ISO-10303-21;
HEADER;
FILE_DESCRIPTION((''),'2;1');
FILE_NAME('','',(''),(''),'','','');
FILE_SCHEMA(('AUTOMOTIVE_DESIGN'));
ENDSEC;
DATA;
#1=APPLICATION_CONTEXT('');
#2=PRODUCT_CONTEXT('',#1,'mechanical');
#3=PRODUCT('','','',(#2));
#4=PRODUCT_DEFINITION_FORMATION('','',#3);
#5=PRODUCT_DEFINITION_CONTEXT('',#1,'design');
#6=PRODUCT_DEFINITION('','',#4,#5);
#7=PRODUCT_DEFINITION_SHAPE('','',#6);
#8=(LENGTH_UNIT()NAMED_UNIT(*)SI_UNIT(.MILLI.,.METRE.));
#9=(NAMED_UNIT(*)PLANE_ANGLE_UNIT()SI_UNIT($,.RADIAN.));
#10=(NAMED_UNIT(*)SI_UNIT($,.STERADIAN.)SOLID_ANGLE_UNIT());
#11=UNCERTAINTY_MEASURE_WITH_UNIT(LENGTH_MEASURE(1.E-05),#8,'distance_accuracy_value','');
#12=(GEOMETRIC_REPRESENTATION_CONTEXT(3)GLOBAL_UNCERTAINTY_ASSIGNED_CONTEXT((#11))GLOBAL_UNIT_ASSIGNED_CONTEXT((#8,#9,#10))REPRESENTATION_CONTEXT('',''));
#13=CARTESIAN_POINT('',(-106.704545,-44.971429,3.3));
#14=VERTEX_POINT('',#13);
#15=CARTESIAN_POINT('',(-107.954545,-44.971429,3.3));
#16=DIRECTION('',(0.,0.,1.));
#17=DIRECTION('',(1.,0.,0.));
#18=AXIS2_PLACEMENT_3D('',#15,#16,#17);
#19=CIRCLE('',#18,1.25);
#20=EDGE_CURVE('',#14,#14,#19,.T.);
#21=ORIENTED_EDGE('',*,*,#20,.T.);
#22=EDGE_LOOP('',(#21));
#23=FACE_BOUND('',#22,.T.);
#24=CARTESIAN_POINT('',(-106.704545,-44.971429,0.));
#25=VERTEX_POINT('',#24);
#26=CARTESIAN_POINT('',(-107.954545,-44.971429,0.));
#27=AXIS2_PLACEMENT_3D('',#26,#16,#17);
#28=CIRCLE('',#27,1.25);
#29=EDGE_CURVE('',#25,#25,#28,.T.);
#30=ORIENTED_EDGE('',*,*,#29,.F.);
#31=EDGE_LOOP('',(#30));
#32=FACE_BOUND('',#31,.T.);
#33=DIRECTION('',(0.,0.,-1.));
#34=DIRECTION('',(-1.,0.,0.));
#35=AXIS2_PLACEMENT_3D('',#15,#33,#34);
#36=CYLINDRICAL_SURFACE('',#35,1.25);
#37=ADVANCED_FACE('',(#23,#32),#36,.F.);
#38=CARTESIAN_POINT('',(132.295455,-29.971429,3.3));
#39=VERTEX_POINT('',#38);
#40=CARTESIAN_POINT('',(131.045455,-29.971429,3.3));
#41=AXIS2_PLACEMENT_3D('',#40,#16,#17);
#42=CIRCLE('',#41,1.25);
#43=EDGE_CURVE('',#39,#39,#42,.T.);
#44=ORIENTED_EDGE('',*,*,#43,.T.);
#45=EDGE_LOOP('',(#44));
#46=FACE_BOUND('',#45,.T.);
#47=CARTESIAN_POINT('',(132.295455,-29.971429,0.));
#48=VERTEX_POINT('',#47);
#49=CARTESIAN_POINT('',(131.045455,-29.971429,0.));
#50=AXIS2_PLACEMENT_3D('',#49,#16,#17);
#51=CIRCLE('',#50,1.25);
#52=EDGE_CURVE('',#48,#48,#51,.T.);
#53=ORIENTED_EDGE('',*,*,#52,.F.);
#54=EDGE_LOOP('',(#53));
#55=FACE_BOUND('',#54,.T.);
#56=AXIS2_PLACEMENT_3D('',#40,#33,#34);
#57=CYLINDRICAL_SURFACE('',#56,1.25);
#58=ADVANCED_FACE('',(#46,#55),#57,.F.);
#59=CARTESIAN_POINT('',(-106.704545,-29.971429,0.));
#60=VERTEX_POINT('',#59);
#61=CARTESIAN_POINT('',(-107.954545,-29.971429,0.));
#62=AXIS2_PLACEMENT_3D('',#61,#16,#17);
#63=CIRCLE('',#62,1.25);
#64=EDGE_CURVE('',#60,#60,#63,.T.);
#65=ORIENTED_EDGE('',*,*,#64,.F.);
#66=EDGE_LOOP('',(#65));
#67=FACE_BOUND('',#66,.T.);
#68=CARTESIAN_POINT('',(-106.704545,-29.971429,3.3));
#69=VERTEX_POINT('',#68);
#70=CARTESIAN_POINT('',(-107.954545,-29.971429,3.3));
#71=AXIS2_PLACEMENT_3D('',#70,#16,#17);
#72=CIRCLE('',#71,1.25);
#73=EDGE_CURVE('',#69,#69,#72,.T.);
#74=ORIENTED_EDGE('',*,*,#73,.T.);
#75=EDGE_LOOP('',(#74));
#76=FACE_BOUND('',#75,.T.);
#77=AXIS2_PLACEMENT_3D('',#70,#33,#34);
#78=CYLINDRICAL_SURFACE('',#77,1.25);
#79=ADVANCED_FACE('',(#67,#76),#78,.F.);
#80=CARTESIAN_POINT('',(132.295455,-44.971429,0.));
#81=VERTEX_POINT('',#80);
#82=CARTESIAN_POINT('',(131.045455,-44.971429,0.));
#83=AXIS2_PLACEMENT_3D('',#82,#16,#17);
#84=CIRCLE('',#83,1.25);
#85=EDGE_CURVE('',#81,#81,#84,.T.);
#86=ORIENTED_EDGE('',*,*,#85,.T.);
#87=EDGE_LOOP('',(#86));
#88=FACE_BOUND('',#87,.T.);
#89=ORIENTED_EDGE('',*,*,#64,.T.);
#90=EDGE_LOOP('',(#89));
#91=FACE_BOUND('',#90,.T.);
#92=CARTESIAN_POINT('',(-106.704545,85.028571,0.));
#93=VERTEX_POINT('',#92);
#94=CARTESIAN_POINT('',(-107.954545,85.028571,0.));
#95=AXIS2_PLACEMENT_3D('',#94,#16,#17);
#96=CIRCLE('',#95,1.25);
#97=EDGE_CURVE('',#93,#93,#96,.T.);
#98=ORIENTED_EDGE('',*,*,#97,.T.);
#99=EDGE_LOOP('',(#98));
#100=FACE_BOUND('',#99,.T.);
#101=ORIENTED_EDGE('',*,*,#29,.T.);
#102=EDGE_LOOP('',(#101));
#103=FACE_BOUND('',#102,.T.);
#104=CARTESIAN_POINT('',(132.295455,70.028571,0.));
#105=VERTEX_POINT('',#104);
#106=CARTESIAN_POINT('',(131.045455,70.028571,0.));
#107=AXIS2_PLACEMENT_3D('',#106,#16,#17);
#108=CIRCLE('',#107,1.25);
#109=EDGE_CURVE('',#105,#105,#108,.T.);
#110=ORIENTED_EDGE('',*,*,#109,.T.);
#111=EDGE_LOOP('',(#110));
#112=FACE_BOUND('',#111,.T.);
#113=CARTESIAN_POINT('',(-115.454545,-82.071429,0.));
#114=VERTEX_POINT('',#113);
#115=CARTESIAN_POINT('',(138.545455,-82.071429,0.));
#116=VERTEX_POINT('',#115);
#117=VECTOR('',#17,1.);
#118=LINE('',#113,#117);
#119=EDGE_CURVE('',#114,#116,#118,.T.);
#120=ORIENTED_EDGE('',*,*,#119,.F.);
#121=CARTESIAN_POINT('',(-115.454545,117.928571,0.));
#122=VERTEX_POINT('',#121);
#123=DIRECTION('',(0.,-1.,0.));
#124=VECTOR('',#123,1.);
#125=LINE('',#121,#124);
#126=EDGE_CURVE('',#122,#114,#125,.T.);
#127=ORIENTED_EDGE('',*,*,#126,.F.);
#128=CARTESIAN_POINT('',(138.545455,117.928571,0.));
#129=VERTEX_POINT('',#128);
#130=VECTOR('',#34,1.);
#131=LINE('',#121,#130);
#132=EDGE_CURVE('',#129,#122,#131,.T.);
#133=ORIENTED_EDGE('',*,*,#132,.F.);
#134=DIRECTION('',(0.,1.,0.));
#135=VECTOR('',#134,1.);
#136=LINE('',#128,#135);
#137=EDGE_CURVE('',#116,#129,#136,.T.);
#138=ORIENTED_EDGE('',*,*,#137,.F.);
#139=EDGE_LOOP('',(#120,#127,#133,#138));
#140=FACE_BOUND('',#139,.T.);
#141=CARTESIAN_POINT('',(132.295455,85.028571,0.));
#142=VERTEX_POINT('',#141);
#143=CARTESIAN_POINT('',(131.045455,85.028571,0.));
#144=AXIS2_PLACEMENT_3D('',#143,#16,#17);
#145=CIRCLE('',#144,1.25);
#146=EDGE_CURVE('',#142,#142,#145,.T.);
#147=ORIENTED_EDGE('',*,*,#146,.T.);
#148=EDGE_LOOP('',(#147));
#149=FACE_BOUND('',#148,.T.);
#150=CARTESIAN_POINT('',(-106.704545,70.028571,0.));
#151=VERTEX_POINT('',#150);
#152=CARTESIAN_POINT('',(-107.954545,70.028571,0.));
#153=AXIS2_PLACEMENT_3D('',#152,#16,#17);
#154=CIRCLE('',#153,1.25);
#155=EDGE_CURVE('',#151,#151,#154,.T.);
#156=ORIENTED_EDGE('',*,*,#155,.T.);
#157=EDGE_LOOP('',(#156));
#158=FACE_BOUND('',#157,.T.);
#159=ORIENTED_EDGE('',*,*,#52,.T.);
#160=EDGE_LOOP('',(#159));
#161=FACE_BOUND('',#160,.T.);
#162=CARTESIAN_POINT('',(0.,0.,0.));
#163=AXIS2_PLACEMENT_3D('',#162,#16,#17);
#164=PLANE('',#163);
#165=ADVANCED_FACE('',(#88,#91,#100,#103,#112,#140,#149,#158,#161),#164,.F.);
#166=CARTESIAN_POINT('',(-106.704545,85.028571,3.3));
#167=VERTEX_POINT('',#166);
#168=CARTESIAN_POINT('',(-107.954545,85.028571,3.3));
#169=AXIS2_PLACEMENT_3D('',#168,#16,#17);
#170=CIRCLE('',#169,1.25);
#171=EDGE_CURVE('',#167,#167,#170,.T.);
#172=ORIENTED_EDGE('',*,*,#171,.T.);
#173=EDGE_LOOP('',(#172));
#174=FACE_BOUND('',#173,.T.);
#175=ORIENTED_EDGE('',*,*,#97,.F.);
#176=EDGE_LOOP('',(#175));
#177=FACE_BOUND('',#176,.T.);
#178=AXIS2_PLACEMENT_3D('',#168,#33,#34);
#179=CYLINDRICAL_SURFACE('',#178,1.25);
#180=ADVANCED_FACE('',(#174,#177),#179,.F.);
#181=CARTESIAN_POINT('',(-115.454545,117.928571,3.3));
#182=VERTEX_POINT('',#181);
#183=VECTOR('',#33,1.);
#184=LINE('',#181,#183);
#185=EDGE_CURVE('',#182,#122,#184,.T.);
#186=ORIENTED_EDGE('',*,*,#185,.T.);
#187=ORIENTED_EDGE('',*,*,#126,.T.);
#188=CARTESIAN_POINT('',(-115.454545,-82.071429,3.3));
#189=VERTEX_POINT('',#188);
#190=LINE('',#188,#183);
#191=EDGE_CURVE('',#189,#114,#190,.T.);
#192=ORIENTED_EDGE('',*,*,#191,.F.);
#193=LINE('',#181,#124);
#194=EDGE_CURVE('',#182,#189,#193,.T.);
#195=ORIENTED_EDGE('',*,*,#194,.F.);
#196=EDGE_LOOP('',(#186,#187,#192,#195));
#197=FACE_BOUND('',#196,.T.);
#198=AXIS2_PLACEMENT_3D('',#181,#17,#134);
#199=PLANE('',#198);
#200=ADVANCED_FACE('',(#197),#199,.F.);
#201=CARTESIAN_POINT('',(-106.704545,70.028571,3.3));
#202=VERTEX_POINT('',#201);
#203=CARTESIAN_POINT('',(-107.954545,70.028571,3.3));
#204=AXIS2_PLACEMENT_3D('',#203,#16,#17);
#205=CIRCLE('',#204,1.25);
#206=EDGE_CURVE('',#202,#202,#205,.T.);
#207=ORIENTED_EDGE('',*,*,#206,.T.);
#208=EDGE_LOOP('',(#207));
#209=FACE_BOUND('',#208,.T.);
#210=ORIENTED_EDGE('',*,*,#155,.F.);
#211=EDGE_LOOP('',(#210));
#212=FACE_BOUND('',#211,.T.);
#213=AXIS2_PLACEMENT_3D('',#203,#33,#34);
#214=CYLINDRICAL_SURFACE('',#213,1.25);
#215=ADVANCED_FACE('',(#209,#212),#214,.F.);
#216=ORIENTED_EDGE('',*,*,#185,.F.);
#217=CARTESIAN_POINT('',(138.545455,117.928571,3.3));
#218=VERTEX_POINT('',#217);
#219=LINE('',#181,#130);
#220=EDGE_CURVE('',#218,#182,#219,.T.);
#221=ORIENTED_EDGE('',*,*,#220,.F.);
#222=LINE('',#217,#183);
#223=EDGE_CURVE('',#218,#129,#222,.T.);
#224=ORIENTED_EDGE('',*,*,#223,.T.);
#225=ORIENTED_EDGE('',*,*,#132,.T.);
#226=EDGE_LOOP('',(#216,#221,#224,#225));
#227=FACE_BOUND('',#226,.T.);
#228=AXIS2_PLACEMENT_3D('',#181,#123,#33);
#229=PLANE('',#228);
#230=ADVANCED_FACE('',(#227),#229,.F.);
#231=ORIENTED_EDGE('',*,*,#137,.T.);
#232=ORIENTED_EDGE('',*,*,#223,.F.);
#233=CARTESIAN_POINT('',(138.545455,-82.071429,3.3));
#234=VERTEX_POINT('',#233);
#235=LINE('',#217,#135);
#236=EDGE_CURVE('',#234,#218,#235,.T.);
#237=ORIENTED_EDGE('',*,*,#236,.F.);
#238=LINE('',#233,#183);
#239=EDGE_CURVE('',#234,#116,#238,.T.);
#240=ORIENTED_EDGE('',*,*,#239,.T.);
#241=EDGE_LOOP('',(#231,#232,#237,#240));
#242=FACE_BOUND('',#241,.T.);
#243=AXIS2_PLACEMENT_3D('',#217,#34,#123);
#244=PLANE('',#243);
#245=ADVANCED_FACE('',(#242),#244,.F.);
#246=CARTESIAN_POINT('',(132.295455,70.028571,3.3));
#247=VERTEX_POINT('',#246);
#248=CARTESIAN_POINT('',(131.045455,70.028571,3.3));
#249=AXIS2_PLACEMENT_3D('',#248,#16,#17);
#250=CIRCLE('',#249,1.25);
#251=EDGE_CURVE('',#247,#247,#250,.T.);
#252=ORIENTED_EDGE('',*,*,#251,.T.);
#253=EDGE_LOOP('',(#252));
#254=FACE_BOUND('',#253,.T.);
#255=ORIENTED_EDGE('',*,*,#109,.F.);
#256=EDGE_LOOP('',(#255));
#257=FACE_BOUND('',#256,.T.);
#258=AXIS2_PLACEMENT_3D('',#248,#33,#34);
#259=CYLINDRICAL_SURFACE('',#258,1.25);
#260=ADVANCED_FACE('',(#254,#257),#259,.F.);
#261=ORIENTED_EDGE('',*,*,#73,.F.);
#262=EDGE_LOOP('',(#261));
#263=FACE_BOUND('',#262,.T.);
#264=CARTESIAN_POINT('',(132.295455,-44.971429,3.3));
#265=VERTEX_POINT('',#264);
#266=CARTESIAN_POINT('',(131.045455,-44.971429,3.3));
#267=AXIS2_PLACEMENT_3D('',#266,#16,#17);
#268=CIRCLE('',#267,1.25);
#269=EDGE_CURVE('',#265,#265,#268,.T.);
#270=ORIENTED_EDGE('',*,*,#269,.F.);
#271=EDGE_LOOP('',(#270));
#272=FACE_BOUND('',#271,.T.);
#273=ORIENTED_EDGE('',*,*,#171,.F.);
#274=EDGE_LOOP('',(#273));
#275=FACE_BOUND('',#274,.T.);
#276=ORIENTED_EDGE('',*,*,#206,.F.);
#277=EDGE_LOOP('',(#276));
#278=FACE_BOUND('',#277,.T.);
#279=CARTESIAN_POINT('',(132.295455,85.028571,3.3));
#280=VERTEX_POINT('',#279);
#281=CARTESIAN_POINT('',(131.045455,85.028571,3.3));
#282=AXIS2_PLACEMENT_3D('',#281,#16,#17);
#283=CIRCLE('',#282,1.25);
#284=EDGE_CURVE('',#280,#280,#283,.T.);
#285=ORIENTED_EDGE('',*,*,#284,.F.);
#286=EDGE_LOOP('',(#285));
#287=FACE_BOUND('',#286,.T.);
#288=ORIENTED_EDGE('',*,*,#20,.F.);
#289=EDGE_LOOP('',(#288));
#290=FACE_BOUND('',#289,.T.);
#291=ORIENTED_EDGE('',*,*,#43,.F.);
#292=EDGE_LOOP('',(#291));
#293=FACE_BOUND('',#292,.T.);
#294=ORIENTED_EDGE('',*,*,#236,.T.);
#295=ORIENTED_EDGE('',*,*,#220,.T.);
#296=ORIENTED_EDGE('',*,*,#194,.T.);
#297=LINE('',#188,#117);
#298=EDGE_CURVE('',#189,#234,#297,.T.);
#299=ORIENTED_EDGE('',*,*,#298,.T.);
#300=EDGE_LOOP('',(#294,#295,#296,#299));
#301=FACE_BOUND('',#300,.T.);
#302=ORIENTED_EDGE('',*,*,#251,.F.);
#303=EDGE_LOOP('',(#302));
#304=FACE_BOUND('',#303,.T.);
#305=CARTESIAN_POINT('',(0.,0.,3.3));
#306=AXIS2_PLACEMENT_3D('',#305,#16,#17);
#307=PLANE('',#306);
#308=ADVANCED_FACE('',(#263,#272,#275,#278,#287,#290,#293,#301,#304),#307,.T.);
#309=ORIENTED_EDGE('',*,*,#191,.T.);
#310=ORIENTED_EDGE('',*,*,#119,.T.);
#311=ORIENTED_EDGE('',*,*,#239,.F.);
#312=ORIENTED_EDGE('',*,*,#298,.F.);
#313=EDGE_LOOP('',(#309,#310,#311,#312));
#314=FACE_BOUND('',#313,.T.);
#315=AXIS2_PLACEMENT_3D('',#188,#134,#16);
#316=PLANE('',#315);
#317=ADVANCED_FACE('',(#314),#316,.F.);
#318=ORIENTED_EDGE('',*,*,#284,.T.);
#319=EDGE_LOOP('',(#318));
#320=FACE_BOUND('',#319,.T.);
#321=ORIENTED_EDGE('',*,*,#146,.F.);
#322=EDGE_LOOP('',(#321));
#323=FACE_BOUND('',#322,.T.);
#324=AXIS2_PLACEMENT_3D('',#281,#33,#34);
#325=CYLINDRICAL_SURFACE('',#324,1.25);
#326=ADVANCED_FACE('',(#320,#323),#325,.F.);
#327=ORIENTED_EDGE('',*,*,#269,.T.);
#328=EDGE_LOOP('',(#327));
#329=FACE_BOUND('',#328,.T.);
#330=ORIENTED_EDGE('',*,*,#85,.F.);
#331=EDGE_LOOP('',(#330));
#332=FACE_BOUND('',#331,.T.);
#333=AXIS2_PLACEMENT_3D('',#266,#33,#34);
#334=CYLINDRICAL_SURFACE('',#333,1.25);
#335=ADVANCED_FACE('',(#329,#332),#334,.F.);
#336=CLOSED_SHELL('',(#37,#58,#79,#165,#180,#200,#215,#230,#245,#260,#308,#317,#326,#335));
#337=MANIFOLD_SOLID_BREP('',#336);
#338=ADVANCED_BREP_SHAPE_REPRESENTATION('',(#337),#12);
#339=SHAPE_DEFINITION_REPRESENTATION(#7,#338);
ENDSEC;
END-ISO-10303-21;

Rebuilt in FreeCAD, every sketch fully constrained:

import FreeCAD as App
import Part
import Sketcher

V = App.Vector
Q = App.Units.Quantity

doc = App.newDocument("Part")
params = doc.addObject("Spreadsheet::Sheet", "Params")
for row, (alias, value) in enumerate([
    ("sketch1_diameter", "2.5 mm"),
    ("sketch1_width", "254 mm"),
    ("sketch1_height", "200 mm"),
    ("pad1_length", "3.3 mm"),
], start=1):
    params.set(f"A{row}", alias)
    params.set(f"B{row}", "=" + value)
    params.setAlias(f"B{row}", alias)

body = doc.addObject("PartDesign::Body", "Body")

# Sketch on XY plane
sketch1 = body.newObject("Sketcher::SketchObject", "Sketch")
sketch1.AttachmentSupport = (doc.getObject("XY_Plane"), [""])
sketch1.MapMode = "FlatFace"
sketch1.addGeometry(Part.LineSegment(V(-115.454545, 117.928571, 0), V(-115.454545, -82.071429, 0)), False)
sketch1.addGeometry(Part.LineSegment(V(-115.454545, -82.071429, 0), V(138.545455, -82.071429, 0)), False)
sketch1.addGeometry(Part.LineSegment(V(138.545455, -82.071429, 0), V(138.545455, 117.928571, 0)), False)
sketch1.addGeometry(Part.LineSegment(V(138.545455, 117.928571, 0), V(-115.454545, 117.928571, 0)), False)
sketch1.addGeometry(Part.Circle(V(-107.954545, -44.971429, 0), V(0, 0, 1), 1.25), False)
sketch1.addGeometry(Part.Circle(V(-107.954545, -29.971429, 0), V(0, 0, 1), 1.25), False)
sketch1.addGeometry(Part.Circle(V(131.045455, -44.971429, 0), V(0, 0, 1), 1.25), False)
sketch1.addGeometry(Part.Circle(V(131.045455, -29.971429, 0), V(0, 0, 1), 1.25), False)
sketch1.addGeometry(Part.Circle(V(-107.954545, 70.028571, 0), V(0, 0, 1), 1.25), False)
sketch1.addGeometry(Part.Circle(V(-107.954545, 85.028571, 0), V(0, 0, 1), 1.25), False)
sketch1.addGeometry(Part.Circle(V(131.045455, 70.028571, 0), V(0, 0, 1), 1.25), False)
sketch1.addGeometry(Part.Circle(V(131.045455, 85.028571, 0), V(0, 0, 1), 1.25), False)
sketch1.addConstraint(Sketcher.Constraint("Coincident", 0, 2, 1, 1))
sketch1.addConstraint(Sketcher.Constraint("Coincident", 1, 2, 2, 1))
sketch1.addConstraint(Sketcher.Constraint("Coincident", 2, 2, 3, 1))
sketch1.addConstraint(Sketcher.Constraint("Coincident", 3, 2, 0, 1))
sketch1.addConstraint(Sketcher.Constraint("Vertical", 0))
sketch1.addConstraint(Sketcher.Constraint("Horizontal", 1))
sketch1.addConstraint(Sketcher.Constraint("Vertical", 2))
sketch1.addConstraint(Sketcher.Constraint("Horizontal", 3))
sketch1.addConstraint(Sketcher.Constraint("Equal", 4, 5))
sketch1.addConstraint(Sketcher.Constraint("Equal", 5, 6))
sketch1.addConstraint(Sketcher.Constraint("Equal", 6, 7))
sketch1.addConstraint(Sketcher.Constraint("Equal", 7, 8))
sketch1.addConstraint(Sketcher.Constraint("Equal", 8, 9))
sketch1.addConstraint(Sketcher.Constraint("Equal", 9, 10))
sketch1.addConstraint(Sketcher.Constraint("Equal", 10, 11))
sketch1.addConstraint(Sketcher.Constraint("Horizontal", 4, 3, 6, 3))
sketch1.addConstraint(Sketcher.Constraint("Horizontal", 5, 3, 7, 3))
sketch1.addConstraint(Sketcher.Constraint("Horizontal", 8, 3, 10, 3))
sketch1.addConstraint(Sketcher.Constraint("Horizontal", 9, 3, 11, 3))
sketch1.addConstraint(Sketcher.Constraint("Vertical", 4, 3, 5, 3))
sketch1.addConstraint(Sketcher.Constraint("Vertical", 6, 3, 7, 3))
sketch1.addConstraint(Sketcher.Constraint("Vertical", 5, 3, 8, 3))
sketch1.addConstraint(Sketcher.Constraint("Vertical", 8, 3, 9, 3))
sketch1.addConstraint(Sketcher.Constraint("Vertical", 7, 3, 10, 3))
sketch1.addConstraint(Sketcher.Constraint("Vertical", 10, 3, 11, 3))
sketch1.addConstraint(Sketcher.Constraint("Diameter", 4, Q("2.5 mm")))
sketch1.addConstraint(Sketcher.Constraint("DistanceX", 1, 1, 1, 2, Q("254 mm")))
sketch1.addConstraint(Sketcher.Constraint("DistanceY", 0, 2, 0, 1, Q("200 mm")))
sketch1.addConstraint(Sketcher.Constraint("DistanceY", 4, 3, 5, 3, Q("15 mm")))
sketch1.addConstraint(Sketcher.Constraint("DistanceX", 4, 3, 6, 3, Q("239 mm")))
sketch1.addConstraint(Sketcher.Constraint("DistanceY", 5, 3, 8, 3, Q("100 mm")))
sketch1.addConstraint(Sketcher.Constraint("DistanceY", 8, 3, 9, 3, Q("15 mm")))
sketch1.addConstraint(Sketcher.Constraint("DistanceX", 0, 2, 4, 3, Q("7.5 mm")))
sketch1.addConstraint(Sketcher.Constraint("DistanceY", 0, 2, 4, 3, Q("37.1 mm")))
sketch1.addConstraint(Sketcher.Constraint("DistanceY", 4, 3, -1, 1, Q("44.971429 mm")))
sketch1.addConstraint(Sketcher.Constraint("DistanceX", 4, 3, -1, 1, Q("107.954545 mm")))
sketch1.setExpression("Constraints[25]", "Params.sketch1_diameter")
sketch1.setExpression("Constraints[26]", "Params.sketch1_width")
sketch1.setExpression("Constraints[27]", "Params.sketch1_height")
pad1 = body.newObject("PartDesign::Pad", "Pad")
pad1.Profile = sketch1
pad1.setExpression("Length", "Params.pad1_length")

doc.recompute()
